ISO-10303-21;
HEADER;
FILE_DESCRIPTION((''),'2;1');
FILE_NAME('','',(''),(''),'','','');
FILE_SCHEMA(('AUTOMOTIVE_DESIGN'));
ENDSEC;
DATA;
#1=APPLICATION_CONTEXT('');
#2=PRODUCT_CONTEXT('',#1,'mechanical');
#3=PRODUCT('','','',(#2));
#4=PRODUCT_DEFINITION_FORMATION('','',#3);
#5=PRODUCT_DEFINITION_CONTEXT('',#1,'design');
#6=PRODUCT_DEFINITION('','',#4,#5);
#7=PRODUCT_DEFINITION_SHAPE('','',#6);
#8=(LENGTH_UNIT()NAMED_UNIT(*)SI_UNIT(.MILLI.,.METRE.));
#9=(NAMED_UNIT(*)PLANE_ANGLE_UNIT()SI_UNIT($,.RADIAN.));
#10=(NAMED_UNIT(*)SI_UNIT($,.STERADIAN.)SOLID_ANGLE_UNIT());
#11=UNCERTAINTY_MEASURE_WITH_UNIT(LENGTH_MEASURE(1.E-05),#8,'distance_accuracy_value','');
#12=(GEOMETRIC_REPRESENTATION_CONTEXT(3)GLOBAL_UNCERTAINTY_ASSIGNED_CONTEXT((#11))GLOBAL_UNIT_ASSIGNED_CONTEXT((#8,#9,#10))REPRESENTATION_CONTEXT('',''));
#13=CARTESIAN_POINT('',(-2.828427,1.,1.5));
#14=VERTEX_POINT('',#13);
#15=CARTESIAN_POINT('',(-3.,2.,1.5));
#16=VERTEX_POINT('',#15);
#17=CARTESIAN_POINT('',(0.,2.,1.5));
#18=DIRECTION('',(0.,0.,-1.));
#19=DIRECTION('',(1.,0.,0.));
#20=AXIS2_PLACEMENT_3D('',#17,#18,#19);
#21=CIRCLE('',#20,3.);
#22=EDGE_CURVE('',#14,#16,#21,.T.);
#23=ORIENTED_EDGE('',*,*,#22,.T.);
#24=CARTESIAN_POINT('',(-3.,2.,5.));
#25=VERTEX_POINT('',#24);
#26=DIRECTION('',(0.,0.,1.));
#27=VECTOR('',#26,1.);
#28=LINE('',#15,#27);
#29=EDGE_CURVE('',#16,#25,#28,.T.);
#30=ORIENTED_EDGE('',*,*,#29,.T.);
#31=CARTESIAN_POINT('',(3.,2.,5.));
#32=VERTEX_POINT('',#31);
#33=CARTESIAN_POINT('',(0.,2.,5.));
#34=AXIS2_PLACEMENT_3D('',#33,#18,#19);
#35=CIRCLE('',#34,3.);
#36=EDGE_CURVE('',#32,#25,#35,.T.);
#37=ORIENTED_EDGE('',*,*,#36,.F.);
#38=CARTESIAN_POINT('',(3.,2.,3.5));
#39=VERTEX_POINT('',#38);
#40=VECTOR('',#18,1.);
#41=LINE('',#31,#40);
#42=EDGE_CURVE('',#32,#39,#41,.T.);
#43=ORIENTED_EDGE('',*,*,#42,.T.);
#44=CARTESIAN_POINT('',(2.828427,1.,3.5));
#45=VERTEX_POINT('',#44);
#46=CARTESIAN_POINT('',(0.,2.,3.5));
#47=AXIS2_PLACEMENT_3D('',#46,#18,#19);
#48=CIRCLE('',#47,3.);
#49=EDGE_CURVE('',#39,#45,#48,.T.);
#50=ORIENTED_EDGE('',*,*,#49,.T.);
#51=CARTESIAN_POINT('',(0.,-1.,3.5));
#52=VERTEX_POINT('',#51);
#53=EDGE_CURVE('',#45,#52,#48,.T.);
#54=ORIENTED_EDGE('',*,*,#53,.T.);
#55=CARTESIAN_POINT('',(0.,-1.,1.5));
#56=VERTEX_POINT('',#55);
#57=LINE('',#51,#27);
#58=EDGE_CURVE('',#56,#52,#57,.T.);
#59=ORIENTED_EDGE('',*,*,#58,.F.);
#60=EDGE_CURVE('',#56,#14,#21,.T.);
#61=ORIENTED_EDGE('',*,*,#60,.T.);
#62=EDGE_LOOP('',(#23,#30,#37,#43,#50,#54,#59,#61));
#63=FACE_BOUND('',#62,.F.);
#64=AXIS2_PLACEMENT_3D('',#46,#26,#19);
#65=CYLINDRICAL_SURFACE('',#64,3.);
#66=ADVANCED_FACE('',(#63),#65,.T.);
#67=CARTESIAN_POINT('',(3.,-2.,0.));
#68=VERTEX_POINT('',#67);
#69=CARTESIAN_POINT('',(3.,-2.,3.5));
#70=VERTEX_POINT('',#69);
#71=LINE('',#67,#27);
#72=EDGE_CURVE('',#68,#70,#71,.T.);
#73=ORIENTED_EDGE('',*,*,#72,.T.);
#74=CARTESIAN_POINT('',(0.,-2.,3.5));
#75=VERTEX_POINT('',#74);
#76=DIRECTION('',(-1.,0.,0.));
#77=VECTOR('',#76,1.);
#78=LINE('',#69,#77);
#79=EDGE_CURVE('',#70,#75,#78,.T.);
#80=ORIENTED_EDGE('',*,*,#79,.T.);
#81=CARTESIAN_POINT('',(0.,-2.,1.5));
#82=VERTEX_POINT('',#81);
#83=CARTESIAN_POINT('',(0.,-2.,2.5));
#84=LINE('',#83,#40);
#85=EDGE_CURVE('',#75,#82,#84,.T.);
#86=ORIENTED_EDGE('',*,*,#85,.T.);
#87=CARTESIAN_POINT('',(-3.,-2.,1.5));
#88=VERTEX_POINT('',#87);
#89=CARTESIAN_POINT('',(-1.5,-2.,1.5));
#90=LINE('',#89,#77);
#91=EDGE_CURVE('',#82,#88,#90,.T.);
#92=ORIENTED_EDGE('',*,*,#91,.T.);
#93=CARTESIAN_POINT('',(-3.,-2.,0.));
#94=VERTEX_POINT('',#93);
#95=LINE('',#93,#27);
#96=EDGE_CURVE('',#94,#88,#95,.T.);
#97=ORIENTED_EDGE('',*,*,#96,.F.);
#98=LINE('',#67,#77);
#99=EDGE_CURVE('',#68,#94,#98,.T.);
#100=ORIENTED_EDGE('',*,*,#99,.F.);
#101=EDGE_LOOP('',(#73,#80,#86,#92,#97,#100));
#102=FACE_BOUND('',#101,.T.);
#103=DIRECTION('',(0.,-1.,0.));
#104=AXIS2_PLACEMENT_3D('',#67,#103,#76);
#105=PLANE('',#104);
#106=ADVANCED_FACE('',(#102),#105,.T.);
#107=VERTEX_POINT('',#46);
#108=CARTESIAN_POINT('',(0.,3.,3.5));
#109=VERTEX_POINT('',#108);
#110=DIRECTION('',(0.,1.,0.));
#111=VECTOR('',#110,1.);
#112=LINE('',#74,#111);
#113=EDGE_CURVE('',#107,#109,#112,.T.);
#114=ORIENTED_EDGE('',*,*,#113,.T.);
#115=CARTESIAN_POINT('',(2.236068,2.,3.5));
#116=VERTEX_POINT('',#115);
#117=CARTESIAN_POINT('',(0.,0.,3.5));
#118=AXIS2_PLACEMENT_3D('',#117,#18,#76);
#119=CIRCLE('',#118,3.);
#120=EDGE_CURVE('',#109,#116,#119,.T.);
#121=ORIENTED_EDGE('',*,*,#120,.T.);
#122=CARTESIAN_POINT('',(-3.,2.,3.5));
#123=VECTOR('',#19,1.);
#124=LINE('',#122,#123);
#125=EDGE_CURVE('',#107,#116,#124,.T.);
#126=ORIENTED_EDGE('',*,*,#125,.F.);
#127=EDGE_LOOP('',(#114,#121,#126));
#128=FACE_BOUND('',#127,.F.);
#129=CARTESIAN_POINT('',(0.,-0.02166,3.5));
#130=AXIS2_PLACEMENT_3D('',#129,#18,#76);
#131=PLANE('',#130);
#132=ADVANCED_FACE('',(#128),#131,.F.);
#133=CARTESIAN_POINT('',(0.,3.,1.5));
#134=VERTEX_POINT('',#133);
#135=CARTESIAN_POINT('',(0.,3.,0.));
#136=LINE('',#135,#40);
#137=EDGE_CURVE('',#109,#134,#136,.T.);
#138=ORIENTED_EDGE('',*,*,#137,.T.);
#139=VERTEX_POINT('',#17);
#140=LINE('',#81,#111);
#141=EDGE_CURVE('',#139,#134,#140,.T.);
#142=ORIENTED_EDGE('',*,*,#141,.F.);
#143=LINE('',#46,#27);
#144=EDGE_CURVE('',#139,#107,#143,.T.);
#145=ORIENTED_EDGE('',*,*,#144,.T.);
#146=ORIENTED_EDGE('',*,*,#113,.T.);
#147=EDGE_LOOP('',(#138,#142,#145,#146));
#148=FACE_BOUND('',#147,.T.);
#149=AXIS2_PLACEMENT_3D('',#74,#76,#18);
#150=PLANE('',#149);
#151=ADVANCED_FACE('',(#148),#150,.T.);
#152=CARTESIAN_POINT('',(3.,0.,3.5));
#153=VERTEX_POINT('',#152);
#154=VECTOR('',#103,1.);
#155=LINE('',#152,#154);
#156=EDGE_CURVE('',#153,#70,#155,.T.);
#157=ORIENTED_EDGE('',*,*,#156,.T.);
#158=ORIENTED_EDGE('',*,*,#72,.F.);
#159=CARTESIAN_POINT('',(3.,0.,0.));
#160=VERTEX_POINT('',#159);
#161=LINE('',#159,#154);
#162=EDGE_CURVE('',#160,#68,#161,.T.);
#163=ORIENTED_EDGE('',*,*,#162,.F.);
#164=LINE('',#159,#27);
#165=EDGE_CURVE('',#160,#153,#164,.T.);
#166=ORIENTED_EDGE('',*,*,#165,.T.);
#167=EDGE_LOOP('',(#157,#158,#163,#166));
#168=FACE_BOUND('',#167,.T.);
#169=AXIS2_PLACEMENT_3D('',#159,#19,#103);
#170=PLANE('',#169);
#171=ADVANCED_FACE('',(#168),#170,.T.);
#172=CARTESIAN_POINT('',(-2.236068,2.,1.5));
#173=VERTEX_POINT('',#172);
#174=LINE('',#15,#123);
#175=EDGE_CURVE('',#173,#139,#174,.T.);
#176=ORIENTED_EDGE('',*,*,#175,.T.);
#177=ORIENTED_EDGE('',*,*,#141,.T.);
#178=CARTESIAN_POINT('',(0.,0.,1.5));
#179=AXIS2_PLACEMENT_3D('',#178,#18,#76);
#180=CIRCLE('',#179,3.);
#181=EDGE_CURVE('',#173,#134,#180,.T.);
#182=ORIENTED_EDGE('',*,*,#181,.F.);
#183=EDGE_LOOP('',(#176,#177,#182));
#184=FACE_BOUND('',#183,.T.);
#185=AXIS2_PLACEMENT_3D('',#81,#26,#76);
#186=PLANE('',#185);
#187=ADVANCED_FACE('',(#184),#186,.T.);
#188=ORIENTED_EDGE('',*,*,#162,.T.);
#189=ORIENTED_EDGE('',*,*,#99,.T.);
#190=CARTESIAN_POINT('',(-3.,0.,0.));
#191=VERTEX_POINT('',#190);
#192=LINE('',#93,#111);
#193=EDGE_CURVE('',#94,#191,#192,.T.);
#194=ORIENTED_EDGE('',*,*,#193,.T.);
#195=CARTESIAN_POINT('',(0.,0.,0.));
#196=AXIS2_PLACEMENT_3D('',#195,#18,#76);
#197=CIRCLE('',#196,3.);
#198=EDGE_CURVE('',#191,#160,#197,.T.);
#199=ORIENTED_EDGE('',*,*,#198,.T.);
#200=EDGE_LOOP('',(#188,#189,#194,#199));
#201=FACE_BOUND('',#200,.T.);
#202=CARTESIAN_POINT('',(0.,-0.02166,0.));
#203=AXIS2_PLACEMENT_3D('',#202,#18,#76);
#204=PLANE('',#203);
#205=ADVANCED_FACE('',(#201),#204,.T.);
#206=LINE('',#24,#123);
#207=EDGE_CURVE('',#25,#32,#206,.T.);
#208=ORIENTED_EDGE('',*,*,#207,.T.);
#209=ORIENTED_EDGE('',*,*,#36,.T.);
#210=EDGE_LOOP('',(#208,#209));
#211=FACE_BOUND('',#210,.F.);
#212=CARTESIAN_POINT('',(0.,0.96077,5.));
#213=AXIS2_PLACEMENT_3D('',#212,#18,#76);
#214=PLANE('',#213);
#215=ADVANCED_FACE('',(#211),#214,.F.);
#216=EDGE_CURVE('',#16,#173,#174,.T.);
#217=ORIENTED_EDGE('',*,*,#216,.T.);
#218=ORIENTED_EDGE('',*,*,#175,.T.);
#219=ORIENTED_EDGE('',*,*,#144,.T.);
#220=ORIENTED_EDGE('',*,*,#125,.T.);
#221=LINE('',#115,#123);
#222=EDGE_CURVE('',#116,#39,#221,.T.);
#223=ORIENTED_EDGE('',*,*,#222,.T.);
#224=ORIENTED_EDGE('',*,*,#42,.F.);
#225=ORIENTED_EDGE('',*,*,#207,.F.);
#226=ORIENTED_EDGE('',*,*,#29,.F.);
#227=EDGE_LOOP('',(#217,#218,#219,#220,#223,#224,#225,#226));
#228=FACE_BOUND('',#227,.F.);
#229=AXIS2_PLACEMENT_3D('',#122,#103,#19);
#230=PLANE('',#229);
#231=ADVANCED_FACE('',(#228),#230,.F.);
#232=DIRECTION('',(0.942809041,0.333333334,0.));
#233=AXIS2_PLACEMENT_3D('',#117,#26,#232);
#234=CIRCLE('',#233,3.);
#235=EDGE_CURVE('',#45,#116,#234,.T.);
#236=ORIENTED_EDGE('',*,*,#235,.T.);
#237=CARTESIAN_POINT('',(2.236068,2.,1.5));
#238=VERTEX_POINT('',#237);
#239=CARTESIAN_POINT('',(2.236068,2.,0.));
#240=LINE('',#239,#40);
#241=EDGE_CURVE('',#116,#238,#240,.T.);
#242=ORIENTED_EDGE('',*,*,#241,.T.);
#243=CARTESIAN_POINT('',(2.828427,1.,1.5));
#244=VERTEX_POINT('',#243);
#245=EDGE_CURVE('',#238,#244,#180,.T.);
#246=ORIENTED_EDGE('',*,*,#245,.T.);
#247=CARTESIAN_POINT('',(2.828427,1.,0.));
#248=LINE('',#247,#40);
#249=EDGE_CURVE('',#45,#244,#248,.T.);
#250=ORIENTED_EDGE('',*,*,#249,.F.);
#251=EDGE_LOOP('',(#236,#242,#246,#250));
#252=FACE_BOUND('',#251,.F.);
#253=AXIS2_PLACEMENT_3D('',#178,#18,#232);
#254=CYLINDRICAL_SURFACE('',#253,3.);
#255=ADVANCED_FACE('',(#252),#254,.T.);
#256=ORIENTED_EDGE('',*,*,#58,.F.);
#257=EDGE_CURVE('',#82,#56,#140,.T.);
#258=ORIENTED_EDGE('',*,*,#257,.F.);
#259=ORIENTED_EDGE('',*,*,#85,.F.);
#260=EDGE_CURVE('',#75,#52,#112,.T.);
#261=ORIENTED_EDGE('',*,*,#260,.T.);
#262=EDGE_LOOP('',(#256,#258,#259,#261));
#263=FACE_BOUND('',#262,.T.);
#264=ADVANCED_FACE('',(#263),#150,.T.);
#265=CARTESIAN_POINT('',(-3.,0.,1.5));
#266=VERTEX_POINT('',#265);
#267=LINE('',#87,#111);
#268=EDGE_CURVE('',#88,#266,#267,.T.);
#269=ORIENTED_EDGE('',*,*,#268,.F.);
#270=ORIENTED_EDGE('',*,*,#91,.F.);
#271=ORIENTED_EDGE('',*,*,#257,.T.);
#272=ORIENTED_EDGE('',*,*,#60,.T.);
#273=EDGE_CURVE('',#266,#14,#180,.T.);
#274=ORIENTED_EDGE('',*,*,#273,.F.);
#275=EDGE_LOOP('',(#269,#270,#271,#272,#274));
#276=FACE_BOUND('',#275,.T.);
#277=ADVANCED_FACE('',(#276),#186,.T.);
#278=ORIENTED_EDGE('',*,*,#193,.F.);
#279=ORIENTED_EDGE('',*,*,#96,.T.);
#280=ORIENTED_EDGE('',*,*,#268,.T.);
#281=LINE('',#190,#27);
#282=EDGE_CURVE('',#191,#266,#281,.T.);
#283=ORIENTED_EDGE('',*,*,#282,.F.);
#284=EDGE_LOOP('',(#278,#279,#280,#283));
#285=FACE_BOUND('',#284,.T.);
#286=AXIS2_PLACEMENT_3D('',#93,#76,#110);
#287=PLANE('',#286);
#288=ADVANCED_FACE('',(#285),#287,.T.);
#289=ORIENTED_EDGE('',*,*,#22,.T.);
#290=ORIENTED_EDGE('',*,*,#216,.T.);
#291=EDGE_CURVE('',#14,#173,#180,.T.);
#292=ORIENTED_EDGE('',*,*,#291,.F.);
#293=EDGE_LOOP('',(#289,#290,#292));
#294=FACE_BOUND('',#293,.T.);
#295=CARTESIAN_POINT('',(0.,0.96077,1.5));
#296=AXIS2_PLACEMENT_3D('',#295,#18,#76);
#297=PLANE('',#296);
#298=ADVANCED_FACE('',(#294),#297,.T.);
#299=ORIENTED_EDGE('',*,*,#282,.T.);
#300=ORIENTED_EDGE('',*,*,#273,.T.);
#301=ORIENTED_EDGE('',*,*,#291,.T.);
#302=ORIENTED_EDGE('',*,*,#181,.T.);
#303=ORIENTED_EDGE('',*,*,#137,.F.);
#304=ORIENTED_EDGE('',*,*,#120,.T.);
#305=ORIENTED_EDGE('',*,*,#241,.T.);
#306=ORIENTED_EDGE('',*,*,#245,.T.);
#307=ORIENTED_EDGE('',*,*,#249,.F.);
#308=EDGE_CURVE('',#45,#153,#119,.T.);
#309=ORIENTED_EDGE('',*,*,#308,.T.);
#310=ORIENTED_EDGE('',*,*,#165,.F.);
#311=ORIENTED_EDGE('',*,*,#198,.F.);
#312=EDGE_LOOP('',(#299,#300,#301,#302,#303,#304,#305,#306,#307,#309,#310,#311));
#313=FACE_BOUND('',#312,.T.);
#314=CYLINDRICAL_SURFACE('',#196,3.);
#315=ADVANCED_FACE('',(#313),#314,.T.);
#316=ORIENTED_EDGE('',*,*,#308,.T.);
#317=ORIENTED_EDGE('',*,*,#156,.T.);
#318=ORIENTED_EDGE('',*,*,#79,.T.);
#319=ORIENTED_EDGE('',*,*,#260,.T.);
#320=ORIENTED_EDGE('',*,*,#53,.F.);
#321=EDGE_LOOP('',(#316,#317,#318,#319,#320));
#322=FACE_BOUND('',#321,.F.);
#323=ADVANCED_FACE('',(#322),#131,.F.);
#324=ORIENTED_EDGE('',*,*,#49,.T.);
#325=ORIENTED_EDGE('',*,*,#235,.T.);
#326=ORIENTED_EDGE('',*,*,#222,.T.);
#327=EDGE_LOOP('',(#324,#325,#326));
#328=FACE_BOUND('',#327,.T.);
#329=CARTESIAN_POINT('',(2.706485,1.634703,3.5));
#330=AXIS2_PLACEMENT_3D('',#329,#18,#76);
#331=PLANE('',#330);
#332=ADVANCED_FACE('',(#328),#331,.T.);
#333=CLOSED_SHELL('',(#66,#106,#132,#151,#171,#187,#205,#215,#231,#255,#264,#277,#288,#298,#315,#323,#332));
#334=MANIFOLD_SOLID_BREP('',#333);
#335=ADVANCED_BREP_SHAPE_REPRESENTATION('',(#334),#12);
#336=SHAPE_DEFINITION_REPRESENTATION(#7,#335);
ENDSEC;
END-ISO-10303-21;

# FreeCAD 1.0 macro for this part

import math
import FreeCAD as App
import Part
import Sketcher

V = App.Vector


def add_polygon(sketch, points):
    """Adds a closed chain of lines whose ends are joined by coincident constraints."""
    first, n = sketch.GeometryCount, len(points)
    for a, b in zip(points, points[1:] + points[:1]):
        sketch.addGeometry(Part.LineSegment(App.Vector(*a, 0), App.Vector(*b, 0)), False)
    for i in range(n):
        sketch.addConstraint(Sketcher.Constraint("Coincident", first + i, 2, first + (i + 1) % n, 1))

doc = App.newDocument("Part")
body = doc.addObject("PartDesign::Body", "Body")

sketch1 = body.newObject("Sketcher::SketchObject", "Sketch")
sketch1.AttachmentSupport = (doc.getObject("XY_Plane"), [""])
sketch1.MapMode = "FlatFace"
sketch1.addGeometry(Part.LineSegment(V(3, -2, 0), V(3, 0, 0)), False)
sketch1.addGeometry(Part.ArcOfCircle(Part.Circle(V(0, 0, 0), V(0, 0, 1), 3), math.radians(0), math.radians(180)), False)
sketch1.addGeometry(Part.LineSegment(V(-3, 0, 0), V(-3, -2, 0)), False)
sketch1.addGeometry(Part.LineSegment(V(-3, -2, 0), V(3, -2, 0)), False)
sketch1.addConstraint(Sketcher.Constraint("Tangent", 0, 2, 1, 1))
sketch1.addConstraint(Sketcher.Constraint("Tangent", 1, 2, 2, 1))
sketch1.addConstraint(Sketcher.Constraint("Coincident", 2, 2, 3, 1))
sketch1.addConstraint(Sketcher.Constraint("Coincident", 3, 2, 0, 1))
sketch1.addConstraint(Sketcher.Constraint("Vertical", 0))
sketch1.addConstraint(Sketcher.Constraint("Vertical", 2))
sketch1.addConstraint(Sketcher.Constraint("Horizontal", 3))
sketch1.addConstraint(Sketcher.Constraint("Coincident", 1, 3, -1, 1))
sketch1.addConstraint(Sketcher.Constraint("Radius", 1, 3.0))
sketch1.addConstraint(Sketcher.Constraint("DistanceY", 0, 1, 0, 2, 2.0))
pad1 = body.newObject("PartDesign::Pad", "Pad")
pad1.Profile = sketch1
pad1.Length = 3.5

sketch2 = body.newObject("Sketcher::SketchObject", "Sketch001")
sketch2.AttachmentSupport = (doc.getObject("XZ_Plane"), [""])
sketch2.MapMode = "FlatFace"
sketch2.AttachmentOffset = App.Placement(V(0, 0, 2), App.Rotation())
add_polygon(sketch2, [(0, 1.5), (0, 3.5), (-3, 3.5), (-3, 1.5)])
sketch2.addConstraint(Sketcher.Constraint("Vertical", 0))
sketch2.addConstraint(Sketcher.Constraint("Horizontal", 1))
sketch2.addConstraint(Sketcher.Constraint("Vertical", 2))
sketch2.addConstraint(Sketcher.Constraint("Horizontal", 3))
sketch2.addConstraint(Sketcher.Constraint("PointOnObject", 0, 2, -2))
sketch2.addConstraint(Sketcher.Constraint("DistanceX", 1, 2, 1, 1, 3.0))
sketch2.addConstraint(Sketcher.Constraint("DistanceY", 0, 1, 0, 2, 2.0))
sketch2.addConstraint(Sketcher.Constraint("DistanceY", -1, 1, 0, 2, 3.5))
pocket1 = body.newObject("PartDesign::Pocket", "Pocket")
pocket1.Profile = sketch2
pocket1.Length = 5.5

sketch3 = body.newObject("Sketcher::SketchObject", "Sketch002")
sketch3.AttachmentSupport = (doc.getObject("XY_Plane"), [""])
sketch3.MapMode = "FlatFace"
sketch3.AttachmentOffset = App.Placement(V(0, 0, 3.5), App.Rotation())
sketch3.addGeometry(Part.LineSegment(V(3, 2, 0), V(-3, 2, 0)), False)
sketch3.addGeometry(Part.ArcOfCircle(Part.Circle(V(0, 2, 0), V(0, 0, 1), 3), math.radians(180), math.radians(360)), False)
sketch3.addConstraint(Sketcher.Constraint("Coincident", 0, 1, 1, 2))
sketch3.addConstraint(Sketcher.Constraint("Coincident", 1, 1, 0, 2))
sketch3.addConstraint(Sketcher.Constraint("Horizontal", 0))
sketch3.addConstraint(Sketcher.Constraint("PointOnObject", 1, 3, -2))
sketch3.addConstraint(Sketcher.Constraint("Horizontal", 1, 3, 0, 1))
sketch3.addConstraint(Sketcher.Constraint("Radius", 1, 3.0))
sketch3.addConstraint(Sketcher.Constraint("DistanceY", -1, 1, 1, 3, 2.0))
pad2 = body.newObject("PartDesign::Pad", "Pad001")
pad2.Profile = sketch3
pad2.Type = "TwoLengths"
pad2.Length = 1.5
pad2.Length2 = 2

sketch4 = body.newObject("Sketcher::SketchObject", "Sketch003")
sketch4.AttachmentSupport = (doc.getObject("XY_Plane"), [""])
sketch4.MapMode = "FlatFace"
sketch4.AttachmentOffset = App.Placement(V(0, 0, 1.5), App.Rotation())
sketch4.addGeometry(Part.ArcOfCircle(Part.Circle(V(0, 2, 0), V(0, 0, 1), 3), math.radians(-19.47), math.radians(0)), False)
sketch4.addGeometry(Part.ArcOfCircle(Part.Circle(V(0, 0, 0), V(0, 0, 1), 3), math.radians(19), math.radians(42)), False)
sketch4.addGeometry(Part.LineSegment(V(2.2, 2, 0), V(3, 2, 0)), False)
sketch4.addConstraint(Sketcher.Constraint("Coincident", 0, 1, 1, 1))
sketch4.addConstraint(Sketcher.Constraint("Coincident", 1, 2, 2, 1))
sketch4.addConstraint(Sketcher.Constraint("Coincident", 2, 2, 0, 2))
sketch4.addConstraint(Sketcher.Constraint("Horizontal", 2))
sketch4.addConstraint(Sketcher.Constraint("Coincident", 1, 3, -1, 1))
sketch4.addConstraint(Sketcher.Constraint("Equal", 0, 1))
sketch4.addConstraint(Sketcher.Constraint("PointOnObject", 0, 3, -2))
sketch4.addConstraint(Sketcher.Constraint("Horizontal", 0, 3, 1, 2))
sketch4.addConstraint(Sketcher.Constraint("Radius", 0, 3.0))
sketch4.addConstraint(Sketcher.Constraint("DistanceY", -1, 1, 0, 3, 2.0))
pocket2 = body.newObject("PartDesign::Pocket", "Pocket001")
pocket2.Profile = sketch4
pocket2.Length = 2
pocket2.Reversed = True

doc.recompute()
